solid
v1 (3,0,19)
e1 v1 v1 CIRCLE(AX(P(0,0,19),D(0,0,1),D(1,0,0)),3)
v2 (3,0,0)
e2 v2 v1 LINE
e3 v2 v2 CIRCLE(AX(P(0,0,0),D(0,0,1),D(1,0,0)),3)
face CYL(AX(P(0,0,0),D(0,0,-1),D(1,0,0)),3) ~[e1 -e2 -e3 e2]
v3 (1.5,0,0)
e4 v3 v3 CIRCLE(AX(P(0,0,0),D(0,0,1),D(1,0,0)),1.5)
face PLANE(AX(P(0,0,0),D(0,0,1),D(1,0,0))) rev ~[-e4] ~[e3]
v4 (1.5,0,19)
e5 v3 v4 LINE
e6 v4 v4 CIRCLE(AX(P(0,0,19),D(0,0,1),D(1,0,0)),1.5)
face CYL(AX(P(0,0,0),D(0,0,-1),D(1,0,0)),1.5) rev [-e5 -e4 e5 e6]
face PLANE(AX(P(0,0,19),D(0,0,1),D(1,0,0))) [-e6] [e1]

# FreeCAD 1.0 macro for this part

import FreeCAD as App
import Part
import Sketcher

V = App.Vector

doc = App.newDocument("Part")
body = doc.addObject("PartDesign::Body", "Body")

sketch1 = body.newObject("Sketcher::SketchObject", "Sketch")
sketch1.AttachmentSupport = (doc.getObject("XY_Plane"), [""])
sketch1.MapMode = "FlatFace"
sketch1.addGeometry([
    Part.Circle(V(0, 0, 0), V(0, 0, 1), 3),
    Part.Circle(V(0, 0, 0), V(0, 0, 1), 1.5),
], False)
sketch1.addConstraint([
    Sketcher.Constraint("Coincident", 0, 3, -1, 1),
    Sketcher.Constraint("Coincident", 1, 3, -1, 1),
    Sketcher.Constraint("Diameter", 0, 6.0),
    Sketcher.Constraint("Diameter", 1, 3.0),
])
pad1 = body.newObject("PartDesign::Pad", "Pad")
pad1.Profile = sketch1
pad1.Length = 19

doc.recompute()
